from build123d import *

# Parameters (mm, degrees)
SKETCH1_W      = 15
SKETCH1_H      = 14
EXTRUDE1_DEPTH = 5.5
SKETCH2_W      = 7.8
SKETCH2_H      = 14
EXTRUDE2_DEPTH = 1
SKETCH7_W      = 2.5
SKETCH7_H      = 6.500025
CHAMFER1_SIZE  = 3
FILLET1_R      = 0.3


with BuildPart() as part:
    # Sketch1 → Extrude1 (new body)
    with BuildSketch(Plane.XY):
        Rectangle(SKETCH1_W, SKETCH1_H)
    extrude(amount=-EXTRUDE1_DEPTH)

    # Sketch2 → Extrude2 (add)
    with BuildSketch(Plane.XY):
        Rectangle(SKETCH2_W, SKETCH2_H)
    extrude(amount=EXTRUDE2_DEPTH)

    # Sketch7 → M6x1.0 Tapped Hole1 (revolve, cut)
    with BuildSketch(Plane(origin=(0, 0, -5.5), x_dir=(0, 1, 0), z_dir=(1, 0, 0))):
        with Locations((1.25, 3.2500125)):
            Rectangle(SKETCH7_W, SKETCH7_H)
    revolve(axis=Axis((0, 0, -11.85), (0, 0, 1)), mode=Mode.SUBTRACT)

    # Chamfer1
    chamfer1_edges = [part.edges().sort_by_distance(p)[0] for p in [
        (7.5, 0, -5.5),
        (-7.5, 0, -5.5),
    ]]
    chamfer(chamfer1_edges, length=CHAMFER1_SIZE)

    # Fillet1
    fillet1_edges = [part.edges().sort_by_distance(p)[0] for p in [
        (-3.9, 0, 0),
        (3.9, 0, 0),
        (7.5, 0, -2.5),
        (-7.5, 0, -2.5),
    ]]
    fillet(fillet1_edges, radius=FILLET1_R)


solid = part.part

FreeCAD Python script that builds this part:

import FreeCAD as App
import Part
import Sketcher
from FreeCAD import Vector
Q = App.Units.Quantity


def edges_at(feature, points):
    """Names of the edges that pass closest to the given points."""
    edges = feature.Shape.Edges
    near = lambda p: min(range(len(edges)), key=lambda i: edges[i].distToShape(Part.Vertex(*p))[0])
    return sorted({f"Edge{near(p) + 1}" for p in points})

doc = App.newDocument("Part")
body = doc.addObject("PartDesign::Body", "Body")

sketch1 = body.newObject("Sketcher::SketchObject", "Sketch")
sketch1.AttachmentSupport = (doc.getObject("XY_Plane"), [""])
sketch1.MapMode = "FlatFace"
sketch1.addGeometry(Part.LineSegment(Vector(-8, 7, 0), Vector(-8, -7, 0)), False)
sketch1.addGeometry(Part.LineSegment(Vector(-8, -7, 0), Vector(8, -7, 0)), False)
sketch1.addGeometry(Part.LineSegment(Vector(8, -7, 0), Vector(8, 7, 0)), False)
sketch1.addGeometry(Part.LineSegment(Vector(8, 7, 0), Vector(-8, 7, 0)), False)
sketch1.addConstraint(Sketcher.Constraint("Coincident", 0, 2, 1, 1))
sketch1.addConstraint(Sketcher.Constraint("Coincident", 1, 2, 2, 1))
sketch1.addConstraint(Sketcher.Constraint("Coincident", 2, 2, 3, 1))
sketch1.addConstraint(Sketcher.Constraint("Coincident", 3, 2, 0, 1))
sketch1.addConstraint(Sketcher.Constraint("Vertical", 0))
sketch1.addConstraint(Sketcher.Constraint("Horizontal", 1))
sketch1.addConstraint(Sketcher.Constraint("Vertical", 2))
sketch1.addConstraint(Sketcher.Constraint("Horizontal", 3))
sketch1.addConstraint(Sketcher.Constraint("Symmetric", 0, 2, 2, 2, -1, 1))
sketch1.addConstraint(Sketcher.Constraint("DistanceX", 1, 1, 1, 2, Q("15 mm")))
sketch1.addConstraint(Sketcher.Constraint("DistanceY", 0, 2, 0, 1, Q("14 mm")))
pad1 = body.newObject("PartDesign::Pad", "Pad")
pad1.Profile = sketch1
pad1.Length = 5.5
pad1.Reversed = True

sketch2 = body.newObject("Sketcher::SketchObject", "Sketch001")
sketch2.AttachmentSupport = (doc.getObject("XY_Plane"), [""])
sketch2.MapMode = "FlatFace"
sketch2.addGeometry(Part.LineSegment(Vector(-4, 7, 0), Vector(-4, -7, 0)), False)
sketch2.addGeometry(Part.LineSegment(Vector(-4, -7, 0), Vector(4, -7, 0)), False)
sketch2.addGeometry(Part.LineSegment(Vector(4, -7, 0), Vector(4, 7, 0)), False)
sketch2.addGeometry(Part.LineSegment(Vector(4, 7, 0), Vector(-4, 7, 0)), False)
sketch2.addConstraint(Sketcher.Constraint("Coincident", 0, 2, 1, 1))
sketch2.addConstraint(Sketcher.Constraint("Coincident", 1, 2, 2, 1))
sketch2.addConstraint(Sketcher.Constraint("Coincident", 2, 2, 3, 1))
sketch2.addConstraint(Sketcher.Constraint("Coincident", 3, 2, 0, 1))
sketch2.addConstraint(Sketcher.Constraint("Vertical", 0))
sketch2.addConstraint(Sketcher.Constraint("Horizontal", 1))
sketch2.addConstraint(Sketcher.Constraint("Vertical", 2))
sketch2.addConstraint(Sketcher.Constraint("Horizontal", 3))
sketch2.addConstraint(Sketcher.Constraint("Symmetric", 0, 2, 2, 2, -1, 1))
sketch2.addConstraint(Sketcher.Constraint("DistanceY", 0, 2, 0, 1, Q("14 mm")))
sketch2.addConstraint(Sketcher.Constraint("DistanceX", 1, 1, 1, 2, Q("7.8 mm")))
pad2 = body.newObject("PartDesign::Pad", "Pad001")
pad2.Profile = sketch2
pad2.Length = 1

sketch3 = body.newObject("Sketcher::SketchObject", "Sketch002")
sketch3.AttachmentSupport = (doc.getObject("YZ_Plane"), [""])
sketch3.MapMode = "FlatFace"
sketch3.addGeometry(Part.LineSegment(Vector(0, 1, 0), Vector(0, -5.5, 0)), False)
sketch3.addGeometry(Part.LineSegment(Vector(0, -5.5, 0), Vector(2.5, -5.5, 0)), False)
sketch3.addGeometry(Part.LineSegment(Vector(2.5, -5.5, 0), Vector(2.5, 1, 0)), False)
sketch3.addGeometry(Part.LineSegment(Vector(2.5, 1, 0), Vector(0, 1, 0)), False)
sketch3.addConstraint(Sketcher.Constraint("Coincident", 0, 2, 1, 1))
sketch3.addConstraint(Sketcher.Constraint("Coincident", 1, 2, 2, 1))
sketch3.addConstraint(Sketcher.Constraint("Coincident", 2, 2, 3, 1))
sketch3.addConstraint(Sketcher.Constraint("Coincident", 3, 2, 0, 1))
sketch3.addConstraint(Sketcher.Constraint("Vertical", 0))
sketch3.addConstraint(Sketcher.Constraint("Horizontal", 1))
sketch3.addConstraint(Sketcher.Constraint("Vertical", 2))
sketch3.addConstraint(Sketcher.Constraint("Horizontal", 3))
sketch3.addConstraint(Sketcher.Constraint("PointOnObject", 0, 2, -2))
sketch3.addConstraint(Sketcher.Constraint("DistanceX", 1, 1, 1, 2, Q("2.5 mm")))
sketch3.addConstraint(Sketcher.Constraint("DistanceY", 0, 2, -1, 1, Q("5.5 mm")))
sketch3.addConstraint(Sketcher.Constraint("DistanceY", 0, 2, 0, 1, Q("6.500025 mm")))
groove = body.newObject("PartDesign::Groove", "Groove")
groove.Profile = sketch3
groove.ReferenceAxis = (sketch3, ["V_Axis"])
groove.Angle = 360
doc.recompute()

chamfer = body.newObject("PartDesign::Chamfer", "Chamfer")
chamfer.Base = (groove, edges_at(groove, [(7.5, 0, -5.5), (-7.5, 0, -5.5)]))
chamfer.Size = 3
doc.recompute()

fillet = body.newObject("PartDesign::Fillet", "Fillet")
fillet.Base = (chamfer, edges_at(chamfer, [
    (-3.9, 0, 0),
    (3.9, 0, 0),
    (7.5, 0, -2.5),
    (-7.5, 0, -2.5),
]))
fillet.Radius = 0.3

doc.recompute()
